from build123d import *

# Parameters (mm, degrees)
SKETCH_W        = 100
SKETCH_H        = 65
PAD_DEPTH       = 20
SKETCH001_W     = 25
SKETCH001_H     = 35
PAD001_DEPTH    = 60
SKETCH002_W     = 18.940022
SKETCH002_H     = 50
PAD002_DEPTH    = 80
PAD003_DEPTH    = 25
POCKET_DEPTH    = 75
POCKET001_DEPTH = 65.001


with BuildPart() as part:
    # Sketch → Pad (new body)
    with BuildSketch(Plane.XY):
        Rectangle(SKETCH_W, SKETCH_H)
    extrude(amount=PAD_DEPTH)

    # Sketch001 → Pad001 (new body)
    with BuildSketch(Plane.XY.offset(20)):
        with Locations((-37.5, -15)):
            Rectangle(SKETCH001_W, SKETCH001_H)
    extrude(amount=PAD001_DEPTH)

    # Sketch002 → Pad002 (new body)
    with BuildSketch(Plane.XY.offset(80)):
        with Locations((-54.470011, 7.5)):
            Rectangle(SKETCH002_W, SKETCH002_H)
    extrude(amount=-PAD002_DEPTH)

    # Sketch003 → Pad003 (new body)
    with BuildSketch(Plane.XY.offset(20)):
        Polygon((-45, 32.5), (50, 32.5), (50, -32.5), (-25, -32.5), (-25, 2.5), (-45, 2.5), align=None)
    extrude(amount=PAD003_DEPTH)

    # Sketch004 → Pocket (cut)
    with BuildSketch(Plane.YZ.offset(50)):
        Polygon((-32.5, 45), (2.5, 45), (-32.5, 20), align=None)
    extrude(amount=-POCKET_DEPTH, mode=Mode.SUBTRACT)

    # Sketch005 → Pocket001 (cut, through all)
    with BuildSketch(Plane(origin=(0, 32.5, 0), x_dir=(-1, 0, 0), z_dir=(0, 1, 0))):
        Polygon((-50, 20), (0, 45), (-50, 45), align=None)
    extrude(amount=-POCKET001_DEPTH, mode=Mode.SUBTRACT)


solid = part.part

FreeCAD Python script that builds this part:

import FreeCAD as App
import Part
import Sketcher
from FreeCAD import Vector

doc = App.newDocument("Part")
body = doc.addObject("PartDesign::Body", "Body")

sketch1 = doc.addObject("Sketcher::SketchObject", "Sketch")
body.addObject(sketch1)
sketch1.AttachmentSupport = (doc.XY_Plane, [""])
sketch1.MapMode = "FlatFace"
sketch1.addGeometry(Part.LineSegment(Vector(-50, 32.5, 0), Vector(-50, -32.5, 0)), False)
sketch1.addGeometry(Part.LineSegment(Vector(-50, -32.5, 0), Vector(50, -32.5, 0)), False)
sketch1.addGeometry(Part.LineSegment(Vector(50, -32.5, 0), Vector(50, 32.5, 0)), False)
sketch1.addGeometry(Part.LineSegment(Vector(50, 32.5, 0), Vector(-50, 32.5, 0)), False)
sketch1.addConstraint(Sketcher.Constraint("Coincident", 0, 2, 1, 1))
sketch1.addConstraint(Sketcher.Constraint("Coincident", 1, 2, 2, 1))
sketch1.addConstraint(Sketcher.Constraint("Coincident", 2, 2, 3, 1))
sketch1.addConstraint(Sketcher.Constraint("Coincident", 3, 2, 0, 1))
sketch1.addConstraint(Sketcher.Constraint("Vertical", 0))
sketch1.addConstraint(Sketcher.Constraint("Horizontal", 1))
sketch1.addConstraint(Sketcher.Constraint("Vertical", 2))
sketch1.addConstraint(Sketcher.Constraint("Horizontal", 3))
sketch1.addConstraint(Sketcher.Constraint("Symmetric", 0, 2, 2, 2, -1, 1))
sketch1.addConstraint(Sketcher.Constraint("DistanceX", 1, 1, 1, 2, 100.0))
sketch1.addConstraint(Sketcher.Constraint("DistanceY", 0, 2, 0, 1, 65.0))
pad1 = doc.addObject("PartDesign::Pad", "Pad")
body.addObject(pad1)
pad1.Profile = sketch1
pad1.Length = 20

sketch2 = doc.addObject("Sketcher::SketchObject", "Sketch001")
body.addObject(sketch2)
sketch2.AttachmentSupport = (doc.XY_Plane, [""])
sketch2.MapMode = "FlatFace"
sketch2.AttachmentOffset = App.Placement(Vector(0, 0, 20), App.Rotation())
sketch2.addGeometry(Part.LineSegment(Vector(-50, 2.5, 0), Vector(-50, -32.5, 0)), False)
sketch2.addGeometry(Part.LineSegment(Vector(-50, -32.5, 0), Vector(-25, -32.5, 0)), False)
sketch2.addGeometry(Part.LineSegment(Vector(-25, -32.5, 0), Vector(-25, 2.5, 0)), False)
sketch2.addGeometry(Part.LineSegment(Vector(-25, 2.5, 0), Vector(-50, 2.5, 0)), False)
sketch2.addConstraint(Sketcher.Constraint("Coincident", 0, 2, 1, 1))
sketch2.addConstraint(Sketcher.Constraint("Coincident", 1, 2, 2, 1))
sketch2.addConstraint(Sketcher.Constraint("Coincident", 2, 2, 3, 1))
sketch2.addConstraint(Sketcher.Constraint("Coincident", 3, 2, 0, 1))
sketch2.addConstraint(Sketcher.Constraint("Vertical", 0))
sketch2.addConstraint(Sketcher.Constraint("Horizontal", 1))
sketch2.addConstraint(Sketcher.Constraint("Vertical", 2))
sketch2.addConstraint(Sketcher.Constraint("Horizontal", 3))
sketch2.addConstraint(Sketcher.Constraint("DistanceX", 1, 1, 1, 2, 25.0))
sketch2.addConstraint(Sketcher.Constraint("DistanceY", 0, 2, 0, 1, 35.0))
sketch2.addConstraint(Sketcher.Constraint("DistanceX", 0, 2, -1, 1, 50.0))
sketch2.addConstraint(Sketcher.Constraint("DistanceY", 0, 2, -1, 1, 32.5))
pad2 = doc.addObject("PartDesign::Pad", "Pad001")
body.addObject(pad2)
pad2.Profile = sketch2
pad2.Length = 60

sketch3 = doc.addObject("Sketcher::SketchObject", "Sketch002")
body.addObject(sketch3)
sketch3.AttachmentSupport = (doc.XY_Plane, [""])
sketch3.MapMode = "FlatFace"
sketch3.AttachmentOffset = App.Placement(Vector(0, 0, 80), App.Rotation())
sketch3.addGeometry(Part.LineSegment(Vector(-63.940022, 32.5, 0), Vector(-63.940022, -17.5, 0)), False)
sketch3.addGeometry(Part.LineSegment(Vector(-63.940022, -17.5, 0), Vector(-45, -17.5, 0)), False)
sketch3.addGeometry(Part.LineSegment(Vector(-45, -17.5, 0), Vector(-45, 32.5, 0)), False)
sketch3.addGeometry(Part.LineSegment(Vector(-45, 32.5, 0), Vector(-63.940022, 32.5, 0)), False)
sketch3.addConstraint(Sketcher.Constraint("Coincident", 0, 2, 1, 1))
sketch3.addConstraint(Sketcher.Constraint("Coincident", 1, 2, 2, 1))
sketch3.addConstraint(Sketcher.Constraint("Coincident", 2, 2, 3, 1))
sketch3.addConstraint(Sketcher.Constraint("Coincident", 3, 2, 0, 1))
sketch3.addConstraint(Sketcher.Constraint("Vertical", 0))
sketch3.addConstraint(Sketcher.Constraint("Horizontal", 1))
sketch3.addConstraint(Sketcher.Constraint("Vertical", 2))
sketch3.addConstraint(Sketcher.Constraint("Horizontal", 3))
sketch3.addConstraint(Sketcher.Constraint("DistanceY", 0, 2, 0, 1, 50.0))
sketch3.addConstraint(Sketcher.Constraint("DistanceX", 1, 2, -1, 1, 45.0))
sketch3.addConstraint(Sketcher.Constraint("DistanceY", 0, 2, -1, 1, 17.5))
sketch3.addConstraint(Sketcher.Constraint("DistanceX", 1, 1, 1, 2, 18.940022))
pad3 = doc.addObject("PartDesign::Pad", "Pad002")
body.addObject(pad3)
pad3.Profile = sketch3
pad3.Length = 80
pad3.Reversed = True

sketch4 = doc.addObject("Sketcher::SketchObject", "Sketch003")
body.addObject(sketch4)
sketch4.AttachmentSupport = (doc.XY_Plane, [""])
sketch4.MapMode = "FlatFace"
sketch4.AttachmentOffset = App.Placement(Vector(0, 0, 20), App.Rotation())
sketch4.addGeometry(Part.LineSegment(Vector(50, 32.5, 0), Vector(-45, 32.5, 0)), False)
sketch4.addGeometry(Part.LineSegment(Vector(-45, 32.5, 0), Vector(-45, 2.5, 0)), False)
sketch4.addGeometry(Part.LineSegment(Vector(-45, 2.5, 0), Vector(-25, 2.5, 0)), False)
sketch4.addGeometry(Part.LineSegment(Vector(-25, 2.5, 0), Vector(-25, -32.5, 0)), False)
sketch4.addGeometry(Part.LineSegment(Vector(-25, -32.5, 0), Vector(50, -32.5, 0)), False)
sketch4.addGeometry(Part.LineSegment(Vector(50, -32.5, 0), Vector(50, 32.5, 0)), False)
sketch4.addConstraint(Sketcher.Constraint("Coincident", 0, 2, 1, 1))
sketch4.addConstraint(Sketcher.Constraint("Coincident", 1, 2, 2, 1))
sketch4.addConstraint(Sketcher.Constraint("Coincident", 2, 2, 3, 1))
sketch4.addConstraint(Sketcher.Constraint("Coincident", 3, 2, 4, 1))
sketch4.addConstraint(Sketcher.Constraint("Coincident", 4, 2, 5, 1))
sketch4.addConstraint(Sketcher.Constraint("Coincident", 5, 2, 0, 1))
sketch4.addConstraint(Sketcher.Constraint("Horizontal", 0))
sketch4.addConstraint(Sketcher.Constraint("Vertical", 1))
sketch4.addConstraint(Sketcher.Constraint("Horizontal", 2))
sketch4.addConstraint(Sketcher.Constraint("Vertical", 3))
sketch4.addConstraint(Sketcher.Constraint("Horizontal", 4))
sketch4.addConstraint(Sketcher.Constraint("Vertical", 5))
sketch4.addConstraint(Sketcher.Constraint("DistanceX", 0, 2, 0, 1, 95.0))
sketch4.addConstraint(Sketcher.Constraint("DistanceX", 2, 1, 2, 2, 20.0))
sketch4.addConstraint(Sketcher.Constraint("DistanceY", 1, 2, 1, 1, 30.0))
sketch4.addConstraint(Sketcher.Constraint("DistanceY", 3, 2, 3, 1, 35.0))
sketch4.addConstraint(Sketcher.Constraint("DistanceX", 0, 2, -1, 1, 45.0))
sketch4.addConstraint(Sketcher.Constraint("DistanceY", -1, 1, 0, 2, 32.5))
pad4 = doc.addObject("PartDesign::Pad", "Pad003")
body.addObject(pad4)
pad4.Profile = sketch4
pad4.Length = 25

sketch5 = doc.addObject("Sketcher::SketchObject", "Sketch004")
body.addObject(sketch5)
sketch5.AttachmentSupport = (doc.YZ_Plane, [""])
sketch5.MapMode = "FlatFace"
sketch5.AttachmentOffset = App.Placement(Vector(0, 0, 50), App.Rotation())
sketch5.addGeometry(Part.LineSegment(Vector(2.5, 45, 0), Vector(-32.5, 45, 0)), False)
sketch5.addGeometry(Part.LineSegment(Vector(-32.5, 45, 0), Vector(-32.5, 20, 0)), False)
sketch5.addGeometry(Part.LineSegment(Vector(-32.5, 20, 0), Vector(2.5, 45, 0)), False)
sketch5.addConstraint(Sketcher.Constraint("Coincident", 0, 2, 1, 1))
sketch5.addConstraint(Sketcher.Constraint("Coincident", 1, 2, 2, 1))
sketch5.addConstraint(Sketcher.Constraint("Coincident", 2, 2, 0, 1))
sketch5.addConstraint(Sketcher.Constraint("Horizontal", 0))
sketch5.addConstraint(Sketcher.Constraint("Vertical", 1))
sketch5.addConstraint(Sketcher.Constraint("DistanceX", 0, 2, 0, 1, 35.0))
sketch5.addConstraint(Sketcher.Constraint("DistanceY", 1, 2, 1, 1, 25.0))
sketch5.addConstraint(Sketcher.Constraint("DistanceY", -1, 1, 0, 2, 45.0))
sketch5.addConstraint(Sketcher.Constraint("DistanceX", 0, 2, -1, 1, 32.5))
pocket1 = doc.addObject("PartDesign::Pocket", "Pocket")
body.addObject(pocket1)
pocket1.Profile = sketch5
pocket1.Length = 75

sketch6 = doc.addObject("Sketcher::SketchObject", "Sketch005")
body.addObject(sketch6)
sketch6.AttachmentSupport = (doc.XZ_Plane, [""])
sketch6.MapMode = "FlatFace"
sketch6.AttachmentOffset = App.Placement(Vector(0, 0, -32.5), App.Rotation())
sketch6.addGeometry(Part.LineSegment(Vector(50, 20, 0), Vector(0, 45, 0)), False)
sketch6.addGeometry(Part.LineSegment(Vector(0, 45, 0), Vector(50, 45, 0)), False)
sketch6.addGeometry(Part.LineSegment(Vector(50, 45, 0), Vector(50, 20, 0)), False)
sketch6.addConstraint(Sketcher.Constraint("Coincident", 0, 2, 1, 1))
sketch6.addConstraint(Sketcher.Constraint("Coincident", 1, 2, 2, 1))
sketch6.addConstraint(Sketcher.Constraint("Coincident", 2, 2, 0, 1))
sketch6.addConstraint(Sketcher.Constraint("Horizontal", 1))
sketch6.addConstraint(Sketcher.Constraint("Vertical", 2))
sketch6.addConstraint(Sketcher.Constraint("PointOnObject", 0, 2, -2))
sketch6.addConstraint(Sketcher.Constraint("DistanceX", 1, 1, 1, 2, 50.0))
sketch6.addConstraint(Sketcher.Constraint("DistanceY", 2, 2, 2, 1, 25.0))
sketch6.addConstraint(Sketcher.Constraint("DistanceY", -1, 1, 0, 2, 45.0))
pocket2 = doc.addObject("PartDesign::Pocket", "Pocket001")
body.addObject(pocket2)
pocket2.Profile = sketch6
pocket2.Type = "ThroughAll"
pocket2.Reversed = True

doc.recompute()
